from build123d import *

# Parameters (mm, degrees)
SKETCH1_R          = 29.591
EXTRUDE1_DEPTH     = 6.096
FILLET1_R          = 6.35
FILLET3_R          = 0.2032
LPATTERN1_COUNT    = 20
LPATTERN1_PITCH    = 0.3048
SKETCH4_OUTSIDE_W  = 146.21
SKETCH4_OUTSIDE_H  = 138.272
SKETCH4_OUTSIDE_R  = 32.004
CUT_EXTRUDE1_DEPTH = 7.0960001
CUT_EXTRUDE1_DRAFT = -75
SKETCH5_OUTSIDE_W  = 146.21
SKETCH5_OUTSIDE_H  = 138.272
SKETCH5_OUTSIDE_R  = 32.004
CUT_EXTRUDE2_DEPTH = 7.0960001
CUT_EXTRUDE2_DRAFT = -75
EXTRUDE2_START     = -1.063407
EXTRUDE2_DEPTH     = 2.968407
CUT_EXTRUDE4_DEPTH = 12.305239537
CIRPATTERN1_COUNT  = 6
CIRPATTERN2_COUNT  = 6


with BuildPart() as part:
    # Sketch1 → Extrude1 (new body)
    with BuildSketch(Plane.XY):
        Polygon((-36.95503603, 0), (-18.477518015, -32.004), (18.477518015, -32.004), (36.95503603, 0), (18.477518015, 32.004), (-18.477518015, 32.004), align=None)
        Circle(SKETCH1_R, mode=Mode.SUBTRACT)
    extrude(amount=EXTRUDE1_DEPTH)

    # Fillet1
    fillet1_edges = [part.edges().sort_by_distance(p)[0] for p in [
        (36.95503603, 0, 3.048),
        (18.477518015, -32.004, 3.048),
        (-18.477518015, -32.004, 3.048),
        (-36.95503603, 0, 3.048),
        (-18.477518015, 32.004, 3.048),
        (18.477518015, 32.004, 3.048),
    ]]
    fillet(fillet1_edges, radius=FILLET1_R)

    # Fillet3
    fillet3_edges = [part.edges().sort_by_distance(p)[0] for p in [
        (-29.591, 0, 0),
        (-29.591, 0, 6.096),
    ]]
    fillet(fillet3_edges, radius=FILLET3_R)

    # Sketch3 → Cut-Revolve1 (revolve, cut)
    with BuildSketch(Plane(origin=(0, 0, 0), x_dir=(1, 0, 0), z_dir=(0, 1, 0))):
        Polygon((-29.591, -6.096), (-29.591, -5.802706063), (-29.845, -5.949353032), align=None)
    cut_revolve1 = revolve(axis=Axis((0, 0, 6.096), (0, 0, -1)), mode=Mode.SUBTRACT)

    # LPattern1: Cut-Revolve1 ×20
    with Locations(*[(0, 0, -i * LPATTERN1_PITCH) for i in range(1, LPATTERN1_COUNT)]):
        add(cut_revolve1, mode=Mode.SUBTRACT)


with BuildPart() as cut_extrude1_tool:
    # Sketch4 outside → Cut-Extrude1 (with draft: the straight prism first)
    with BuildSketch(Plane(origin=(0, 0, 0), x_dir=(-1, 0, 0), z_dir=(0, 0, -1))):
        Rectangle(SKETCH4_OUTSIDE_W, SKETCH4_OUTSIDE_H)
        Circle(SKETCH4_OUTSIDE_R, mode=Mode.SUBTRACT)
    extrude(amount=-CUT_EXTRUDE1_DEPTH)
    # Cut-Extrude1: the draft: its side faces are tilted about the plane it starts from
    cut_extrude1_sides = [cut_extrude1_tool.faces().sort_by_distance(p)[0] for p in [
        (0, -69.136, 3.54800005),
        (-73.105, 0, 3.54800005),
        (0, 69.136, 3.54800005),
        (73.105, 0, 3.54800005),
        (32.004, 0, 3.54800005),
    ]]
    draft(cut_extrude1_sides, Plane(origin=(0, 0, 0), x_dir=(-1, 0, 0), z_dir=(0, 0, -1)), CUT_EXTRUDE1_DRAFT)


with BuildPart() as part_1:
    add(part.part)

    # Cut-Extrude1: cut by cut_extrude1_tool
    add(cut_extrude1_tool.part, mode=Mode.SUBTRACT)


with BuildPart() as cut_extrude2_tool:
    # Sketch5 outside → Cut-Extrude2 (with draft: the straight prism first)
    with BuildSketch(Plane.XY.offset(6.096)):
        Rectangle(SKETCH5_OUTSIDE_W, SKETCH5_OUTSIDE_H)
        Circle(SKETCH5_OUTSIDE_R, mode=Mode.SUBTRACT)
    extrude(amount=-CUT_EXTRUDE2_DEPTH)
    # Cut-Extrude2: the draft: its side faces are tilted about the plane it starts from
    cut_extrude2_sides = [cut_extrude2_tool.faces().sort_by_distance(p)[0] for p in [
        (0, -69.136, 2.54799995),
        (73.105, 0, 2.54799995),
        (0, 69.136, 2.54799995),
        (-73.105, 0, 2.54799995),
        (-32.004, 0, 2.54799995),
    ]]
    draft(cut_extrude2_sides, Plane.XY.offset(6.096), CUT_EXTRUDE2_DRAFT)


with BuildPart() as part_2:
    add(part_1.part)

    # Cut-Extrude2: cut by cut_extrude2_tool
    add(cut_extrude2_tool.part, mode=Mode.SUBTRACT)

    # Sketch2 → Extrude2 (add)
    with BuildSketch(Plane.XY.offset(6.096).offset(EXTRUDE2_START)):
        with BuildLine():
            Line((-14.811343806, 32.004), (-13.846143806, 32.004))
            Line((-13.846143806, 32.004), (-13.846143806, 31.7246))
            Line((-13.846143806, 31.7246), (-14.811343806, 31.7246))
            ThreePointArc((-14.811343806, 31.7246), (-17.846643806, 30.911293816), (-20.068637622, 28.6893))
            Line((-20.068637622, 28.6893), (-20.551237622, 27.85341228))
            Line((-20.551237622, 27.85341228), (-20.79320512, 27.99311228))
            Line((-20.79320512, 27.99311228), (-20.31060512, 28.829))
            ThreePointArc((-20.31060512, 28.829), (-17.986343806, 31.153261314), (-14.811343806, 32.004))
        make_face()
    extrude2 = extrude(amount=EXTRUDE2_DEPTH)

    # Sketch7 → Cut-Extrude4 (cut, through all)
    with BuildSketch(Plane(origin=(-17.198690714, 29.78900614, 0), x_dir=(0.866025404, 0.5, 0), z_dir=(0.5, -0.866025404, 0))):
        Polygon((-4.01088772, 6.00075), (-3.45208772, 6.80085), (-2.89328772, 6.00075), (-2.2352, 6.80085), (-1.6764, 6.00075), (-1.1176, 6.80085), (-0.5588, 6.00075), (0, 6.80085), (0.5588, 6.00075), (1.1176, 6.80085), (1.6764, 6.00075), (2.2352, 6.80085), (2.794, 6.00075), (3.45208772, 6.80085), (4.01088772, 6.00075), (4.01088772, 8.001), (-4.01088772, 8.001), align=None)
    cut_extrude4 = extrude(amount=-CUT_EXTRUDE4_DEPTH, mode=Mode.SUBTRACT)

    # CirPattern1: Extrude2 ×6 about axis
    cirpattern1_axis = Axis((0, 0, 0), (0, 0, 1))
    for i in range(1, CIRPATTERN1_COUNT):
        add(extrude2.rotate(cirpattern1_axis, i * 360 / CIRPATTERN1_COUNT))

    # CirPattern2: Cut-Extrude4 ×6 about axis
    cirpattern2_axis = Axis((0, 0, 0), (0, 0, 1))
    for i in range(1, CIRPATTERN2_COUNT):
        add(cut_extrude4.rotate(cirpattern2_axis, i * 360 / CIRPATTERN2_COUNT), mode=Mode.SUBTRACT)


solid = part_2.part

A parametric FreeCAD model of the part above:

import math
import FreeCAD as App
import Part
import Sketcher
from FreeCAD import Vector
Q = App.Units.Quantity


def edges_at(feature, points):
    """Names of the edges that pass closest to the given points."""
    edges = feature.Shape.Edges
    near = lambda p: min(range(len(edges)), key=lambda i: edges[i].distToShape(Part.Vertex(*p))[0])
    return sorted({f"Edge{near(p) + 1}" for p in points})


def faces_at(feature, points):
    """Names of the faces that lie closest to the given points."""
    faces = feature.Shape.Faces
    near = lambda p: min(range(len(faces)), key=lambda i: faces[i].distToShape(Part.Vertex(*p))[0])
    return sorted({f"Face{near(p) + 1}" for p in points})


def add_polygon(sketch, points):
    """Adds a closed chain of lines whose ends are joined by coincident constraints."""
    first, n = sketch.GeometryCount, len(points)
    for a, b in zip(points, points[1:] + points[:1]):
        sketch.addGeometry(Part.LineSegment(App.Vector(*a, 0), App.Vector(*b, 0)), False)
    for i in range(n):
        sketch.addConstraint(Sketcher.Constraint("Coincident", first + i, 2, first + (i + 1) % n, 1))

doc = App.newDocument("Part")
body = doc.addObject("PartDesign::Body", "Body")

sketch1 = body.newObject("Sketcher::SketchObject", "Sketch")
sketch1.AttachmentSupport = (doc.getObject("XY_Plane"), [""])
sketch1.MapMode = "FlatFace"
add_polygon(sketch1, [(-36.955036, 0), (-18.477518, -32.004), (18.477518, -32.004), (36.955036, 0), (18.477518, 32.004), (-18.477518, 32.004)])
sketch1.addGeometry(Part.Circle(Vector(0, 0, 0), Vector(0, 0, 1), 29.591), False)
sketch1.addConstraint([
    Sketcher.Constraint("Horizontal", 1),
    Sketcher.Constraint("Horizontal", 4),
    Sketcher.Constraint("Coincident", 6, 3, -1, 1),
    Sketcher.Constraint("Symmetric", 0, 2, 3, 2, -1, 1),
    Sketcher.Constraint("Symmetric", 2, 2, 5, 2, -1, 1),
    Sketcher.Constraint("PointOnObject", 2, 2, -1),
    Sketcher.Constraint("Parallel", 2, 5),
    Sketcher.Constraint("Vertical", 1, 2, 3, 2),
    Sketcher.Constraint("Diameter", 6, Q("2.33 in")),
    Sketcher.Constraint("Angle", 0, Q("-60 deg")),
    Sketcher.Constraint("DistanceY", 0, 2, -1, 1, Q("1.26 in")),
    Sketcher.Constraint("DistanceX", 1, 1, 1, 2, 36.955036),
])
pad1 = body.newObject("PartDesign::Pad", "Pad")
pad1.Profile = sketch1
pad1.Length = Q("0.24 in")
doc.recompute()

fillet = body.newObject("PartDesign::Fillet", "Fillet")
fillet.Base = (pad1, edges_at(pad1, [
    (36.955, 0, 3.048),
    (18.478, -32.004, 3.048),
    (-18.478, -32.004, 3.048),
    (-36.955, 0, 3.048),
    (-18.478, 32.004, 3.048),
    (18.478, 32.004, 3.048),
]))
fillet.Radius = Q("0.25 in")
doc.recompute()

fillet2 = body.newObject("PartDesign::Fillet", "Fillet001")
fillet2.Base = (fillet, edges_at(fillet, [(-29.591, 0, 0), (-29.591, 0, 6.096)]))
fillet2.Radius = Q("0.008 in")

sketch2 = body.newObject("Sketcher::SketchObject", "Sketch001")
sketch2.AttachmentSupport = (doc.getObject("XZ_Plane"), [""])
sketch2.MapMode = "FlatFace"
add_polygon(sketch2, [(-29.591, 6.096), (-29.591, 5.802706), (-29.845, 5.949353)])
sketch2.addConstraint([
    Sketcher.Constraint("Vertical", 0),
    Sketcher.Constraint("Equal", 1, 2),
    Sketcher.Constraint("Angle", 1, Q("150 deg")),
    Sketcher.Constraint("DistanceY", -1, 1, 2, 2, Q("0.24 in")),
    Sketcher.Constraint("DistanceX", 1, 2, 0, 2, Q("0.01 in")),
    Sketcher.Constraint("DistanceX", 0, 2, -1, 1, Q("1.165 in")),
])
groove = body.newObject("PartDesign::Groove", "Groove")
groove.Profile = sketch2
groove.ReferenceAxis = (sketch2, ["V_Axis"])
groove.Angle = 360
doc.recompute()

linearpattern = body.newObject("PartDesign::LinearPattern", "LinearPattern")
linearpattern.Originals = [groove]
linearpattern.Direction = (doc.getObject("Z_Axis"), [""])
linearpattern.Mode = "offset"
linearpattern.Offset = Q("0.012 in")
linearpattern.Occurrences = 20
linearpattern.Reversed = True
body.Tip = linearpattern
body2 = doc.addObject("PartDesign::Body", "Body001")

sketch3 = body2.newObject("Sketcher::SketchObject", "Sketch002")
sketch3.AttachmentSupport = (doc.getObject("XY_Plane001"), [""])
sketch3.MapMode = "FlatFace"
add_polygon(sketch3, [(73.105, 69.136), (73.105, -69.136), (-73.105, -69.136), (-73.105, 69.136)])
sketch3.addGeometry(Part.Circle(Vector(0, 0, 0), Vector(0, 0, 1), 32.004), False)
sketch3.addConstraint([
    Sketcher.Constraint("Vertical", 0),
    Sketcher.Constraint("Horizontal", 1),
    Sketcher.Constraint("Vertical", 2),
    Sketcher.Constraint("Horizontal", 3),
    Sketcher.Constraint("Coincident", 4, 3, -1, 1),
    Sketcher.Constraint("Symmetric", 0, 2, 2, 2, -1, 1),
    Sketcher.Constraint("Diameter", 4, Q("2.52 in")),
    Sketcher.Constraint("DistanceX", 1, 2, 1, 1, 146.21),
    Sketcher.Constraint("DistanceY", 0, 2, 0, 1, 138.272),
])
pad2 = body2.newObject("PartDesign::Pad", "Pad001")
pad2.Profile = sketch3
pad2.Length = 7.096
doc.recompute()

draft = body2.newObject("PartDesign::Draft", "Draft")
draft.Base = (pad2, faces_at(pad2, [
    (0, -69.136, 3.548),
    (-73.105, 0, 3.548),
    (0, 69.136, 3.548),
    (73.105, 0, 3.548),
    (32.004, 0, 3.548),
]))
draft.NeutralPlane = (doc.getObject("XY_Plane001"), [""])
draft.Angle = 75
draft.Reversed = False
doc.recompute()

boolean = body.newObject("PartDesign::Boolean", "Boolean")
boolean.Type = "Cut"
boolean.addObjects([body2])
body3 = doc.addObject("PartDesign::Body", "Body002")

sketch4 = body3.newObject("Sketcher::SketchObject", "Sketch003")
sketch4.AttachmentSupport = (doc.getObject("XY_Plane002"), [""])
sketch4.MapMode = "FlatFace"
sketch4.AttachmentOffset = App.Placement(Vector(0, 0, 0.24 * 25.4), App.Rotation())
add_polygon(sketch4, [(-73.105, 69.136), (-73.105, -69.136), (73.105, -69.136), (73.105, 69.136)])
sketch4.addGeometry(Part.Circle(Vector(0, 0, 0), Vector(0, 0, 1), 32.004), False)
sketch4.addConstraint([
    Sketcher.Constraint("Vertical", 0),
    Sketcher.Constraint("Horizontal", 1),
    Sketcher.Constraint("Vertical", 2),
    Sketcher.Constraint("Horizontal", 3),
    Sketcher.Constraint("Coincident", 4, 3, -1, 1),
    Sketcher.Constraint("Symmetric", 0, 2, 2, 2, -1, 1),
    Sketcher.Constraint("Diameter", 4, Q("2.52 in")),
    Sketcher.Constraint("DistanceX", 1, 1, 1, 2, 146.21),
    Sketcher.Constraint("DistanceY", 0, 2, 0, 1, 138.272),
])
pad3 = body3.newObject("PartDesign::Pad", "Pad002")
pad3.Profile = sketch4
pad3.Length = 7.096
pad3.Reversed = True
doc.recompute()

datumplane = body3.newObject("PartDesign::Plane", "DatumPlane")
datumplane.AttachmentSupport = (doc.getObject("XY_Plane002"), [""])
datumplane.MapMode = "FlatFace"
datumplane.AttachmentOffset = App.Placement(Vector(0, 0, 0.24 * 25.4), App.Rotation())
draft2 = body3.newObject("PartDesign::Draft", "Draft001")
draft2.Base = (pad3, faces_at(pad3, [
    (0, -69.136, 2.548),
    (73.105, 0, 2.548),
    (0, 69.136, 2.548),
    (-73.105, 0, 2.548),
    (-32.004, 0, 2.548),
]))
draft2.NeutralPlane = (datumplane, [""])
draft2.Angle = 75
draft2.Reversed = True
doc.recompute()

boolean2 = body.newObject("PartDesign::Boolean", "Boolean001")
boolean2.Type = "Cut"
boolean2.addObjects([body3])

sketch5 = body.newObject("Sketcher::SketchObject", "Sketch004")
sketch5.AttachmentSupport = (doc.getObject("XY_Plane"), [""])
sketch5.MapMode = "FlatFace"
sketch5.AttachmentOffset = App.Placement(Vector(0, 0, 5.032593), App.Rotation())
sketch5.addGeometry([
    Part.LineSegment(Vector(-13.846144, 32.004, 0), Vector(-14.811344, 32.004, 0)),
    Part.ArcOfCircle(Part.Circle(Vector(-14.811344, 25.654, 0), Vector(0, 0, 1), 6.35), math.radians(90), math.radians(150)),
    Part.LineSegment(Vector(-20.310605, 28.829, 0), Vector(-20.793205, 27.993112, 0)),
    Part.LineSegment(Vector(-20.793205, 27.993112, 0), Vector(-20.551238, 27.853412, 0)),
    Part.LineSegment(Vector(-20.551238, 27.853412, 0), Vector(-20.068638, 28.6893, 0)),
    Part.ArcOfCircle(Part.Circle(Vector(-14.811344, 25.654, 0), Vector(0, 0, 1), 6.0706), math.radians(90), math.radians(150)),
    Part.LineSegment(Vector(-14.811344, 31.7246, 0), Vector(-13.846144, 31.7246, 0)),
    Part.LineSegment(Vector(-13.846144, 31.7246, 0), Vector(-13.846144, 32.004, 0)),
], False)
sketch5.addConstraint([
    Sketcher.Constraint("Tangent", 0, 2, 1, 1),
    Sketcher.Constraint("Tangent", 1, 2, 2, 1),
    Sketcher.Constraint("Coincident", 2, 2, 3, 1),
    Sketcher.Constraint("Coincident", 3, 2, 4, 1),
    Sketcher.Constraint("Tangent", 4, 2, 5, 2),
    Sketcher.Constraint("Tangent", 5, 1, 6, 1),
    Sketcher.Constraint("Coincident", 6, 2, 7, 1),
    Sketcher.Constraint("Coincident", 7, 2, 0, 1),
    Sketcher.Constraint("Horizontal", 0),
    Sketcher.Constraint("Horizontal", 6),
    Sketcher.Constraint("Vertical", 7),
    Sketcher.Constraint("Coincident", 5, 3, 1, 3),
    Sketcher.Constraint("Perpendicular", 2, 3),
    Sketcher.Constraint("Perpendicular", 3, 4),
    Sketcher.Constraint("Radius", 1, Q("0.25 in")),
    Sketcher.Constraint("Angle", 2, Q("-120 deg")),
    Sketcher.Constraint("Radius", 5, Q("0.239 in")),
    Sketcher.Constraint("DistanceX", 0, 2, 0, 1, Q("0.038 in")),
    Sketcher.Constraint("DistanceY", -1, 1, 1, 3, Q("1.01 in")),
    Sketcher.Constraint("Distance", 2, Q("0.038 in")),
    Sketcher.Constraint("DistanceX", 1, 3, -1, 1, 14.811344),
])
pad4 = body.newObject("PartDesign::Pad", "Pad003")
pad4.Profile = sketch5
pad4.Length = 2.968407

sketch6 = body.newObject("Sketcher::SketchObject", "Sketch005")
sketch6.Placement = App.Placement(Vector(-17.198691, 29.789006, 0), App.Rotation(Vector(0.866025404, 0.5, 0), Vector(0, 0, 1), Vector(0.5, -0.866025404, 0), "ZXY"))
add_polygon(sketch6, [(-4.010888, 6.00075), (-3.452088, 6.80085), (-2.893288, 6.00075), (-2.2352, 6.80085), (-1.6764, 6.00075), (-1.1176, 6.80085), (-0.5588, 6.00075), (0, 6.80085), (0.5588, 6.00075), (1.1176, 6.80085), (1.6764, 6.00075), (2.2352, 6.80085), (2.794, 6.00075), (3.452088, 6.80085), (4.010888, 6.00075), (4.010888, 8.001), (-4.010888, 8.001)])
sketch6.addConstraint([
    Sketcher.Constraint("Vertical", 14),
    Sketcher.Constraint("Horizontal", 15),
    Sketcher.Constraint("Vertical", 16),
    Sketcher.Constraint("Symmetric", 5, 2, 7, 2, -2),
    Sketcher.Constraint("Symmetric", 4, 2, 8, 2, -2),
    Sketcher.Constraint("Symmetric", 3, 2, 9, 2, -2),
    Sketcher.Constraint("Symmetric", 2, 2, 10, 2, -2),
    Sketcher.Constraint("Symmetric", 0, 2, 12, 2, -2),
    Sketcher.Constraint("Symmetric", 13, 2, 16, 2, -2),
    Sketcher.Constraint("PointOnObject", 6, 2, -2),
    Sketcher.Constraint("Parallel", 1, 3),
    Sketcher.Constraint("Parallel", 0, 4),
    Sketcher.Constraint("Parallel", 3, 5),
    Sketcher.Constraint("Parallel", 4, 6),
    Sketcher.Constraint("Parallel", 5, 7),
    Sketcher.Constraint("Parallel", 9, 11),
    Sketcher.Constraint("Parallel", 2, 12),
    Sketcher.Constraint("Horizontal", 0, 2, 2, 2),
    Sketcher.Constraint("Horizontal", 1, 2, 3, 2),
    Sketcher.Constraint("Horizontal", 2, 2, 4, 2),
    Sketcher.Constraint("Horizontal", 3, 2, 5, 2),
    Sketcher.Constraint("Horizontal", 4, 2, 6, 2),
    Sketcher.Constraint("Horizontal", 11, 2, 13, 2),
    Sketcher.Constraint("DistanceX", -1, 1, 11, 2, Q("0.11 in")),
    Sketcher.Constraint("DistanceY", -1, 1, 14, 2, Q("0.315 in")),
    Sketcher.Constraint("DistanceY", 1, 2, 0, 2, Q("0.0315 in")),
    Sketcher.Constraint("DistanceY", 14, 1, 14, 2, 2.00025),
    Sketcher.Constraint("DistanceX", 15, 2, 15, 1, 8.021775),
])
pocket1 = body.newObject("PartDesign::Pocket", "Pocket")
pocket1.Profile = sketch6
pocket1.Type = "ThroughAll"
doc.recompute()

polarpattern = body.newObject("PartDesign::PolarPattern", "PolarPattern")
polarpattern.Originals = [pad4]
polarpattern.Axis = (doc.getObject("Z_Axis"), [""])
polarpattern.Angle = 360
polarpattern.Occurrences = 6
body.Tip = polarpattern
doc.recompute()

polarpattern2 = body.newObject("PartDesign::PolarPattern", "PolarPattern001")
polarpattern2.Originals = [pocket1]
polarpattern2.Axis = (doc.getObject("Z_Axis"), [""])
polarpattern2.Angle = 360
polarpattern2.Occurrences = 6
body.Tip = polarpattern2

doc.recompute()
